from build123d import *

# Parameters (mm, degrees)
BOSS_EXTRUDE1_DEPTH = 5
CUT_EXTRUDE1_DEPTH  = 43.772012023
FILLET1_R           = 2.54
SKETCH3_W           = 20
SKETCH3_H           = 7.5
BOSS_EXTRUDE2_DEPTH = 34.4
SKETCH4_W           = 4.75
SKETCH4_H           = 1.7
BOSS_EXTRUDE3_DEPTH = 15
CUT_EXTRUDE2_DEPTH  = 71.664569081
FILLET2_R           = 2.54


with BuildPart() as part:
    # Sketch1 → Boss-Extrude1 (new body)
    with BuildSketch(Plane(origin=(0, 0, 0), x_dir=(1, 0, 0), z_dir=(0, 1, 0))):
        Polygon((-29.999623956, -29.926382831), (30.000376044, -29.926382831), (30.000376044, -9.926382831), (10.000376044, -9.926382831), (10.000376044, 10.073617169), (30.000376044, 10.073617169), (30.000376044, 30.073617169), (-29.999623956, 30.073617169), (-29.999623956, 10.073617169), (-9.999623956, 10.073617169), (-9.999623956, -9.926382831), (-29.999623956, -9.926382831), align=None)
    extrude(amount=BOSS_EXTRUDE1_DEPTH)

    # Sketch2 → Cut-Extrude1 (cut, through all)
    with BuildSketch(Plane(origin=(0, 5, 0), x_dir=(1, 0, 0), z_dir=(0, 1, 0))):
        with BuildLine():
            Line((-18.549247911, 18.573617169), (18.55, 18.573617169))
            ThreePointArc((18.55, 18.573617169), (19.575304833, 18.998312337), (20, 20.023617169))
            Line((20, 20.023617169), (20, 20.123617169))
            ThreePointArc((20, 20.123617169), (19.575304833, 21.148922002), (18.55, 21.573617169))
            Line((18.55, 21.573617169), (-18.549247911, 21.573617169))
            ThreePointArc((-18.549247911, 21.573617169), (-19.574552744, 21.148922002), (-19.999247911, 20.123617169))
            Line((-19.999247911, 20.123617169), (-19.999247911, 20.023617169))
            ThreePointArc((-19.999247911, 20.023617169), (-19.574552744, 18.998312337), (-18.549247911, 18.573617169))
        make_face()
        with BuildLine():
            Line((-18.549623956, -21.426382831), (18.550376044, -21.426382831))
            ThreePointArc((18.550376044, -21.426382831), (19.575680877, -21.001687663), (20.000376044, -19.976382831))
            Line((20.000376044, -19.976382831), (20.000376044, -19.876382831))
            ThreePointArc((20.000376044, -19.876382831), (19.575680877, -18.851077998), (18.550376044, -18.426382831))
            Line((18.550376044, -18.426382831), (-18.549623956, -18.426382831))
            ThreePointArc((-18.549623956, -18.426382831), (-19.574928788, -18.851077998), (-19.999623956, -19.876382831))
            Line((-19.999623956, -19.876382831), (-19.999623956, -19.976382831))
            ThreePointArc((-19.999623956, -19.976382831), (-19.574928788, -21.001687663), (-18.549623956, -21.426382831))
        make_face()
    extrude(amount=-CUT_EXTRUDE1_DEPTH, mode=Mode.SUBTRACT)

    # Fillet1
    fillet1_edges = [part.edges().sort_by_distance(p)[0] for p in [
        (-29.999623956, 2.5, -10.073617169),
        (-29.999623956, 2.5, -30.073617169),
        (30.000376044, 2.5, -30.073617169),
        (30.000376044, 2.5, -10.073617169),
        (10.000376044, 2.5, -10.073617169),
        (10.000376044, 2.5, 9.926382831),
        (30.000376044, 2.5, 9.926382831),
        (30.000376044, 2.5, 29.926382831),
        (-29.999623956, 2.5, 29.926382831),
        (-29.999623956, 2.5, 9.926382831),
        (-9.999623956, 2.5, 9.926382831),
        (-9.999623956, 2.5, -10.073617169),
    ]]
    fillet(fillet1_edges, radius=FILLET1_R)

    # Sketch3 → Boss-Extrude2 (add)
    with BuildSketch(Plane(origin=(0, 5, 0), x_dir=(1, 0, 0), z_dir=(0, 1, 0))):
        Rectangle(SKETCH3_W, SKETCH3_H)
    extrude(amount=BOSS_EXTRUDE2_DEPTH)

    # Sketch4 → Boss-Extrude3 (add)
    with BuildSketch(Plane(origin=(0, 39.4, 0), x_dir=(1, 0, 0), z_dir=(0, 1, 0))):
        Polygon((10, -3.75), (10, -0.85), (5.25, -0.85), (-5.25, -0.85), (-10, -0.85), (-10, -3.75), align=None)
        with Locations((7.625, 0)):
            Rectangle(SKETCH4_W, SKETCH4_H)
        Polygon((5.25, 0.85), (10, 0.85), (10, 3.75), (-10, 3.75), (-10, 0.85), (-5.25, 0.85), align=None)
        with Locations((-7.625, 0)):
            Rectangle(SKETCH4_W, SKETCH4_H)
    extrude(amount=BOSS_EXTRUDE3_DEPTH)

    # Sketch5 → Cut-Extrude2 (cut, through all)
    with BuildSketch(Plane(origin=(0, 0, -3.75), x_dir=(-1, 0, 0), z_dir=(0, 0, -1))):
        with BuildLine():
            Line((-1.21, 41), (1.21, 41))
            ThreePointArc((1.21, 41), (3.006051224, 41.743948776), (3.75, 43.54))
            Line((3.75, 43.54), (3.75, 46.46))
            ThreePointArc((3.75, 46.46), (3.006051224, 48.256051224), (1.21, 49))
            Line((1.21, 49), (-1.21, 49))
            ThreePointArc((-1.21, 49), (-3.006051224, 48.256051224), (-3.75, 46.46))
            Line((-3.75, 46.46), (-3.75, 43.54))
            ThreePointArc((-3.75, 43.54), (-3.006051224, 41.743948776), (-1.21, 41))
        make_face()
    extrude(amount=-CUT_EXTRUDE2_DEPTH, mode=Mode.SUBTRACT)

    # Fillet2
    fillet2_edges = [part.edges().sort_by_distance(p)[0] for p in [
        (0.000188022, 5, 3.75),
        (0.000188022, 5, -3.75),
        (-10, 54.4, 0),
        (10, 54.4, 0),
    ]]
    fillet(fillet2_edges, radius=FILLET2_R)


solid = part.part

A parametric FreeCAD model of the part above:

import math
import FreeCAD as App
import Part
import Sketcher

V = App.Vector


def edges_at(feature, points):
    """Names of the edges that pass closest to the given points."""
    edges = feature.Shape.Edges
    near = lambda p: min(range(len(edges)), key=lambda i: edges[i].distToShape(Part.Vertex(*p))[0])
    return sorted({f"Edge{near(p) + 1}" for p in points})


def add_polygon(sketch, points):
    """Adds a closed chain of lines whose ends are joined by coincident constraints."""
    first, n = sketch.GeometryCount, len(points)
    for a, b in zip(points, points[1:] + points[:1]):
        sketch.addGeometry(Part.LineSegment(App.Vector(*a, 0), App.Vector(*b, 0)), False)
    for i in range(n):
        sketch.addConstraint(Sketcher.Constraint("Coincident", first + i, 2, first + (i + 1) % n, 1))

doc = App.newDocument("Part")
body = doc.addObject("PartDesign::Body", "Body")

# Sketch on XZ plane
sketch1 = body.newObject("Sketcher::SketchObject", "Sketch")
sketch1.AttachmentSupport = (doc.getObject("XZ_Plane"), [""])
sketch1.MapMode = "FlatFace"
add_polygon(sketch1, [(-29.999624, 29.926383), (30.000376, 29.926383), (30.000376, 9.926383), (10.000376, 9.926383), (10.000376, -10.073617), (30.000376, -10.073617), (30.000376, -30.073617), (-29.999624, -30.073617), (-29.999624, -10.073617), (-9.999624, -10.073617), (-9.999624, 9.926383), (-29.999624, 9.926383)])  # lines 0-11
sketch1.addConstraint(Sketcher.Constraint("Horizontal", 0))
sketch1.addConstraint(Sketcher.Constraint("Vertical", 1))
sketch1.addConstraint(Sketcher.Constraint("Horizontal", 2))
sketch1.addConstraint(Sketcher.Constraint("Vertical", 3))
sketch1.addConstraint(Sketcher.Constraint("Horizontal", 4))
sketch1.addConstraint(Sketcher.Constraint("Vertical", 5))
sketch1.addConstraint(Sketcher.Constraint("Horizontal", 6))
sketch1.addConstraint(Sketcher.Constraint("Vertical", 7))
sketch1.addConstraint(Sketcher.Constraint("Horizontal", 8))
sketch1.addConstraint(Sketcher.Constraint("Vertical", 9))
sketch1.addConstraint(Sketcher.Constraint("Horizontal", 10))
sketch1.addConstraint(Sketcher.Constraint("Vertical", 11))
sketch1.addConstraint(Sketcher.Constraint("Horizontal", 4, 2, 7, 2))
sketch1.addConstraint(Sketcher.Constraint("Horizontal", 2, 2, 9, 2))
sketch1.addConstraint(Sketcher.Constraint("Vertical", 1, 2, 4, 2))
sketch1.addConstraint(Sketcher.Constraint("Vertical", 7, 2, 10, 2))
sketch1.addConstraint(Sketcher.Constraint("Equal", 4, 8))
sketch1.addConstraint(Sketcher.Constraint("Equal", 10, 1))
sketch1.addConstraint(Sketcher.Constraint("Equal", 1, 3))
sketch1.addConstraint(Sketcher.Constraint("Equal", 3, 5))
sketch1.addConstraint(Sketcher.Constraint("DistanceX", 0, 1, 0, 2, 60.0))
sketch1.addConstraint(Sketcher.Constraint("DistanceX", 2, 2, 2, 1, 20.0))
sketch1.addConstraint(Sketcher.Constraint("DistanceX", -1, 1, 0, 2, 30.000376))
sketch1.addConstraint(Sketcher.Constraint("DistanceY", -1, 1, 0, 2, 29.926383))
pad1 = body.newObject("PartDesign::Pad", "Pad")
pad1.Profile = sketch1
pad1.Length = 5
pad1.Reversed = True

# Sketch on XZ plane
sketch2 = body.newObject("Sketcher::SketchObject", "Sketch001")
sketch2.AttachmentSupport = (doc.getObject("XZ_Plane"), [""])
sketch2.MapMode = "FlatFace"
sketch2.AttachmentOffset = App.Placement(V(0, 0, -5), App.Rotation())
sketch2.addGeometry(Part.LineSegment(V(-18.549248, -18.573617, 0), V(18.55, -18.573617, 0)), False)
sketch2.addGeometry(Part.ArcOfCircle(Part.Circle(V(18.55, -20.023617, 0), V(0, 0, 1), 1.45), math.radians(0), math.radians(90)), False)
sketch2.addGeometry(Part.LineSegment(V(20, -20.023617, 0), V(20, -20.123617, 0)), False)
sketch2.addGeometry(Part.ArcOfCircle(Part.Circle(V(18.55, -20.123617, 0), V(0, 0, 1), 1.45), math.radians(-90), math.radians(0)), False)
sketch2.addGeometry(Part.LineSegment(V(18.55, -21.573617, 0), V(-18.549248, -21.573617, 0)), False)
sketch2.addGeometry(Part.ArcOfCircle(Part.Circle(V(-18.549248, -20.123617, 0), V(0, 0, 1), 1.45), math.radians(180), math.radians(270)), False)
sketch2.addGeometry(Part.LineSegment(V(-19.999248, -20.123617, 0), V(-19.999248, -20.023617, 0)), False)
sketch2.addGeometry(Part.ArcOfCircle(Part.Circle(V(-18.549248, -20.023617, 0), V(0, 0, 1), 1.45), math.radians(90), math.radians(180)), False)
sketch2.addGeometry(Part.LineSegment(V(-18.549624, 21.426383, 0), V(18.550376, 21.426383, 0)), False)
sketch2.addGeometry(Part.ArcOfCircle(Part.Circle(V(18.550376, 19.976383, 0), V(0, 0, 1), 1.45), math.radians(0), math.radians(90)), False)
sketch2.addGeometry(Part.LineSegment(V(20.000376, 19.976383, 0), V(20.000376, 19.876383, 0)), False)
sketch2.addGeometry(Part.ArcOfCircle(Part.Circle(V(18.550376, 19.876383, 0), V(0, 0, 1), 1.45), math.radians(-90), math.radians(0)), False)
sketch2.addGeometry(Part.LineSegment(V(18.550376, 18.426383, 0), V(-18.549624, 18.426383, 0)), False)
sketch2.addGeometry(Part.ArcOfCircle(Part.Circle(V(-18.549624, 19.876383, 0), V(0, 0, 1), 1.45), math.radians(-180), math.radians(-90)), False)
sketch2.addGeometry(Part.LineSegment(V(-19.999624, 19.876383, 0), V(-19.999624, 19.976383, 0)), False)
sketch2.addGeometry(Part.ArcOfCircle(Part.Circle(V(-18.549624, 19.976383, 0), V(0, 0, 1), 1.45), math.radians(90), math.radians(180)), False)
sketch2.addConstraint(Sketcher.Constraint("Tangent", 0, 2, 1, 2))
sketch2.addConstraint(Sketcher.Constraint("Tangent", 1, 1, 2, 1))
sketch2.addConstraint(Sketcher.Constraint("Tangent", 2, 2, 3, 2))
sketch2.addConstraint(Sketcher.Constraint("Tangent", 3, 1, 4, 1))
sketch2.addConstraint(Sketcher.Constraint("Tangent", 4, 2, 5, 2))
sketch2.addConstraint(Sketcher.Constraint("Tangent", 5, 1, 6, 1))
sketch2.addConstraint(Sketcher.Constraint("Tangent", 6, 2, 7, 2))
sketch2.addConstraint(Sketcher.Constraint("Tangent", 7, 1, 0, 1))
sketch2.addConstraint(Sketcher.Constraint("Tangent", 8, 2, 9, 2))
sketch2.addConstraint(Sketcher.Constraint("Tangent", 9, 1, 10, 1))
sketch2.addConstraint(Sketcher.Constraint("Tangent", 10, 2, 11, 2))
sketch2.addConstraint(Sketcher.Constraint("Tangent", 11, 1, 12, 1))
sketch2.addConstraint(Sketcher.Constraint("Tangent", 12, 2, 13, 2))
sketch2.addConstraint(Sketcher.Constraint("Tangent", 13, 1, 14, 1))
sketch2.addConstraint(Sketcher.Constraint("Tangent", 14, 2, 15, 2))
sketch2.addConstraint(Sketcher.Constraint("Tangent", 15, 1, 8, 1))
sketch2.addConstraint(Sketcher.Constraint("Horizontal", 0))
sketch2.addConstraint(Sketcher.Constraint("Vertical", 2))
sketch2.addConstraint(Sketcher.Constraint("Horizontal", 4))
sketch2.addConstraint(Sketcher.Constraint("Vertical", 6))
sketch2.addConstraint(Sketcher.Constraint("Horizontal", 8))
sketch2.addConstraint(Sketcher.Constraint("Vertical", 10))
sketch2.addConstraint(Sketcher.Constraint("Horizontal", 12))
sketch2.addConstraint(Sketcher.Constraint("Vertical", 14))
sketch2.addConstraint(Sketcher.Constraint("Equal", 1, 3))
sketch2.addConstraint(Sketcher.Constraint("Equal", 3, 5))
sketch2.addConstraint(Sketcher.Constraint("Equal", 5, 7))
sketch2.addConstraint(Sketcher.Constraint("Equal", 7, 9))
sketch2.addConstraint(Sketcher.Constraint("Equal", 9, 11))
sketch2.addConstraint(Sketcher.Constraint("Equal", 11, 13))
sketch2.addConstraint(Sketcher.Constraint("Equal", 13, 15))
sketch2.addConstraint(Sketcher.Constraint("Equal", 6, 10))
sketch2.addConstraint(Sketcher.Constraint("Radius", 1, 1.45))
sketch2.addConstraint(Sketcher.Constraint("DistanceX", 8, 1, 8, 2, 37.1))
sketch2.addConstraint(Sketcher.Constraint("DistanceY", 2, 2, 2, 1, 0.1))
sketch2.addConstraint(Sketcher.Constraint("DistanceX", -1, 1, 1, 1, 20.0))
sketch2.addConstraint(Sketcher.Constraint("DistanceY", 1, 3, 9, 3, 40.0))
sketch2.addConstraint(Sketcher.Constraint("DistanceX", 0, 1, 0, 2, 37.099248))
sketch2.addConstraint(Sketcher.Constraint("DistanceY", 1, 3, -1, 1, 20.023617))
sketch2.addConstraint(Sketcher.Constraint("DistanceX", -1, 1, 9, 3, 18.550376))
pocket1 = body.newObject("PartDesign::Pocket", "Pocket")
pocket1.Profile = sketch2
pocket1.Type = "ThroughAll"
pocket1.Reversed = True
doc.recompute()

fillet = body.newObject("PartDesign::Fillet", "Fillet")
fillet.Base = (pocket1, edges_at(pocket1, [
    (-30, 2.5, -10.074),
    (-30, 2.5, -30.074),
    (30, 2.5, -30.074),
    (30, 2.5, -10.074),
    (10, 2.5, -10.074),
    (10, 2.5, 9.926),
    (30, 2.5, 9.926),
    (30, 2.5, 29.926),
    (-30, 2.5, 29.926),
    (-30, 2.5, 9.926),
    (-10, 2.5, 9.926),
    (-10, 2.5, -10.074),
]))
fillet.Radius = 2.54

# Sketch on XZ plane
sketch3 = body.newObject("Sketcher::SketchObject", "Sketch002")
sketch3.AttachmentSupport = (doc.getObject("XZ_Plane"), [""])
sketch3.MapMode = "FlatFace"
sketch3.AttachmentOffset = App.Placement(V(0, 0, -5), App.Rotation())
add_polygon(sketch3, [(-10, -3.75), (-10, 3.75), (10, 3.75), (10, -3.75)])  # lines 0-3
sketch3.addConstraint(Sketcher.Constraint("Vertical", 0))
sketch3.addConstraint(Sketcher.Constraint("Horizontal", 1))
sketch3.addConstraint(Sketcher.Constraint("Vertical", 2))
sketch3.addConstraint(Sketcher.Constraint("Horizontal", 3))
sketch3.addConstraint(Sketcher.Constraint("Symmetric", 0, 2, 2, 2, -1, 1))
sketch3.addConstraint(Sketcher.Constraint("DistanceX", 1, 1, 1, 2, 20.0))
sketch3.addConstraint(Sketcher.Constraint("DistanceY", 0, 1, 0, 2, 7.5))
pad2 = body.newObject("PartDesign::Pad", "Pad001")
pad2.Profile = sketch3
pad2.Length = 34.4
pad2.Reversed = True

# Sketch on XZ plane
sketch4 = body.newObject("Sketcher::SketchObject", "Sketch003")
sketch4.AttachmentSupport = (doc.getObject("XZ_Plane"), [""])
sketch4.MapMode = "FlatFace"
sketch4.AttachmentOffset = App.Placement(V(0, 0, -39.4), App.Rotation())
add_polygon(sketch4, [(10, 3.75), (10, -3.75), (-10, -3.75), (-10, 3.75)])  # lines 0-3
add_polygon(sketch4, [(-5.25, -0.85), (5.25, -0.85), (5.25, 0.85), (-5.25, 0.85)])  # lines 4-7
sketch4.addConstraint(Sketcher.Constraint("Vertical", 0))
sketch4.addConstraint(Sketcher.Constraint("Horizontal", 1))
sketch4.addConstraint(Sketcher.Constraint("Vertical", 2))
sketch4.addConstraint(Sketcher.Constraint("Horizontal", 3))
sketch4.addConstraint(Sketcher.Constraint("Horizontal", 4))
sketch4.addConstraint(Sketcher.Constraint("Vertical", 5))
sketch4.addConstraint(Sketcher.Constraint("Horizontal", 6))
sketch4.addConstraint(Sketcher.Constraint("Vertical", 7))
sketch4.addConstraint(Sketcher.Constraint("Symmetric", 0, 2, 2, 2, -1, 1))
sketch4.addConstraint(Sketcher.Constraint("Symmetric", 4, 2, 6, 2, -1, 1))
sketch4.addConstraint(Sketcher.Constraint("DistanceX", 1, 2, 1, 1, 20.0))
sketch4.addConstraint(Sketcher.Constraint("DistanceX", 4, 1, 4, 2, 10.5))
sketch4.addConstraint(Sketcher.Constraint("DistanceY", 0, 2, 0, 1, 7.5))
sketch4.addConstraint(Sketcher.Constraint("DistanceY", 5, 1, 5, 2, 1.7))
pad3 = body.newObject("PartDesign::Pad", "Pad002")
pad3.Profile = sketch4
pad3.Length = 15
pad3.Reversed = True

# Sketch on XY plane
sketch5 = body.newObject("Sketcher::SketchObject", "Sketch004")
sketch5.AttachmentSupport = (doc.getObject("XY_Plane"), [""])
sketch5.MapMode = "FlatFace"
sketch5.AttachmentOffset = App.Placement(V(0, 0, -3.75), App.Rotation())
sketch5.addGeometry(Part.LineSegment(V(1.21, 41, 0), V(-1.21, 41, 0)), False)
sketch5.addGeometry(Part.ArcOfCircle(Part.Circle(V(-1.21, 43.54, 0), V(0, 0, 1), 2.54), math.radians(-180), math.radians(-90)), False)
sketch5.addGeometry(Part.LineSegment(V(-3.75, 43.54, 0), V(-3.75, 46.46, 0)), False)
sketch5.addGeometry(Part.ArcOfCircle(Part.Circle(V(-1.21, 46.46, 0), V(0, 0, 1), 2.54), math.radians(90), math.radians(180)), False)
sketch5.addGeometry(Part.LineSegment(V(-1.21, 49, 0), V(1.21, 49, 0)), False)
sketch5.addGeometry(Part.ArcOfCircle(Part.Circle(V(1.21, 46.46, 0), V(0, 0, 1), 2.54), math.radians(0), math.radians(90)), False)
sketch5.addGeometry(Part.LineSegment(V(3.75, 46.46, 0), V(3.75, 43.54, 0)), False)
sketch5.addGeometry(Part.ArcOfCircle(Part.Circle(V(1.21, 43.54, 0), V(0, 0, 1), 2.54), math.radians(-90), math.radians(0)), False)
sketch5.addConstraint(Sketcher.Constraint("Tangent", 0, 2, 1, 2))
sketch5.addConstraint(Sketcher.Constraint("Tangent", 1, 1, 2, 1))
sketch5.addConstraint(Sketcher.Constraint("Tangent", 2, 2, 3, 2))
sketch5.addConstraint(Sketcher.Constraint("Tangent", 3, 1, 4, 1))
sketch5.addConstraint(Sketcher.Constraint("Tangent", 4, 2, 5, 2))
sketch5.addConstraint(Sketcher.Constraint("Tangent", 5, 1, 6, 1))
sketch5.addConstraint(Sketcher.Constraint("Tangent", 6, 2, 7, 2))
sketch5.addConstraint(Sketcher.Constraint("Tangent", 7, 1, 0, 1))
sketch5.addConstraint(Sketcher.Constraint("Horizontal", 0))
sketch5.addConstraint(Sketcher.Constraint("Vertical", 2))
sketch5.addConstraint(Sketcher.Constraint("Horizontal", 4))
sketch5.addConstraint(Sketcher.Constraint("Vertical", 6))
sketch5.addConstraint(Sketcher.Constraint("Equal", 1, 3))
sketch5.addConstraint(Sketcher.Constraint("Equal", 3, 5))
sketch5.addConstraint(Sketcher.Constraint("Equal", 5, 7))
sketch5.addConstraint(Sketcher.Constraint("Radius", 1, 2.54))
sketch5.addConstraint(Sketcher.Constraint("DistanceY", -1, 1, 0, 2, 41.0))
sketch5.addConstraint(Sketcher.Constraint("DistanceY", -1, 1, 3, 1, 49.0))
sketch5.addConstraint(Sketcher.Constraint("DistanceX", 0, 2, 0, 1, 2.42))
sketch5.addConstraint(Sketcher.Constraint("DistanceX", 1, 3, -1, 1, 1.21))
pocket2 = body.newObject("PartDesign::Pocket", "Pocket001")
pocket2.Profile = sketch5
pocket2.Type = "ThroughAll"
pocket2.Reversed = True
doc.recompute()

fillet2 = body.newObject("PartDesign::Fillet", "Fillet001")
fillet2.Base = (pocket2, edges_at(pocket2, [
    (0, 5, 3.75),
    (0, 5, -3.75),
    (-10, 54.4, 0),
    (10, 54.4, 0),
]))
fillet2.Radius = 2.54

doc.recompute()
